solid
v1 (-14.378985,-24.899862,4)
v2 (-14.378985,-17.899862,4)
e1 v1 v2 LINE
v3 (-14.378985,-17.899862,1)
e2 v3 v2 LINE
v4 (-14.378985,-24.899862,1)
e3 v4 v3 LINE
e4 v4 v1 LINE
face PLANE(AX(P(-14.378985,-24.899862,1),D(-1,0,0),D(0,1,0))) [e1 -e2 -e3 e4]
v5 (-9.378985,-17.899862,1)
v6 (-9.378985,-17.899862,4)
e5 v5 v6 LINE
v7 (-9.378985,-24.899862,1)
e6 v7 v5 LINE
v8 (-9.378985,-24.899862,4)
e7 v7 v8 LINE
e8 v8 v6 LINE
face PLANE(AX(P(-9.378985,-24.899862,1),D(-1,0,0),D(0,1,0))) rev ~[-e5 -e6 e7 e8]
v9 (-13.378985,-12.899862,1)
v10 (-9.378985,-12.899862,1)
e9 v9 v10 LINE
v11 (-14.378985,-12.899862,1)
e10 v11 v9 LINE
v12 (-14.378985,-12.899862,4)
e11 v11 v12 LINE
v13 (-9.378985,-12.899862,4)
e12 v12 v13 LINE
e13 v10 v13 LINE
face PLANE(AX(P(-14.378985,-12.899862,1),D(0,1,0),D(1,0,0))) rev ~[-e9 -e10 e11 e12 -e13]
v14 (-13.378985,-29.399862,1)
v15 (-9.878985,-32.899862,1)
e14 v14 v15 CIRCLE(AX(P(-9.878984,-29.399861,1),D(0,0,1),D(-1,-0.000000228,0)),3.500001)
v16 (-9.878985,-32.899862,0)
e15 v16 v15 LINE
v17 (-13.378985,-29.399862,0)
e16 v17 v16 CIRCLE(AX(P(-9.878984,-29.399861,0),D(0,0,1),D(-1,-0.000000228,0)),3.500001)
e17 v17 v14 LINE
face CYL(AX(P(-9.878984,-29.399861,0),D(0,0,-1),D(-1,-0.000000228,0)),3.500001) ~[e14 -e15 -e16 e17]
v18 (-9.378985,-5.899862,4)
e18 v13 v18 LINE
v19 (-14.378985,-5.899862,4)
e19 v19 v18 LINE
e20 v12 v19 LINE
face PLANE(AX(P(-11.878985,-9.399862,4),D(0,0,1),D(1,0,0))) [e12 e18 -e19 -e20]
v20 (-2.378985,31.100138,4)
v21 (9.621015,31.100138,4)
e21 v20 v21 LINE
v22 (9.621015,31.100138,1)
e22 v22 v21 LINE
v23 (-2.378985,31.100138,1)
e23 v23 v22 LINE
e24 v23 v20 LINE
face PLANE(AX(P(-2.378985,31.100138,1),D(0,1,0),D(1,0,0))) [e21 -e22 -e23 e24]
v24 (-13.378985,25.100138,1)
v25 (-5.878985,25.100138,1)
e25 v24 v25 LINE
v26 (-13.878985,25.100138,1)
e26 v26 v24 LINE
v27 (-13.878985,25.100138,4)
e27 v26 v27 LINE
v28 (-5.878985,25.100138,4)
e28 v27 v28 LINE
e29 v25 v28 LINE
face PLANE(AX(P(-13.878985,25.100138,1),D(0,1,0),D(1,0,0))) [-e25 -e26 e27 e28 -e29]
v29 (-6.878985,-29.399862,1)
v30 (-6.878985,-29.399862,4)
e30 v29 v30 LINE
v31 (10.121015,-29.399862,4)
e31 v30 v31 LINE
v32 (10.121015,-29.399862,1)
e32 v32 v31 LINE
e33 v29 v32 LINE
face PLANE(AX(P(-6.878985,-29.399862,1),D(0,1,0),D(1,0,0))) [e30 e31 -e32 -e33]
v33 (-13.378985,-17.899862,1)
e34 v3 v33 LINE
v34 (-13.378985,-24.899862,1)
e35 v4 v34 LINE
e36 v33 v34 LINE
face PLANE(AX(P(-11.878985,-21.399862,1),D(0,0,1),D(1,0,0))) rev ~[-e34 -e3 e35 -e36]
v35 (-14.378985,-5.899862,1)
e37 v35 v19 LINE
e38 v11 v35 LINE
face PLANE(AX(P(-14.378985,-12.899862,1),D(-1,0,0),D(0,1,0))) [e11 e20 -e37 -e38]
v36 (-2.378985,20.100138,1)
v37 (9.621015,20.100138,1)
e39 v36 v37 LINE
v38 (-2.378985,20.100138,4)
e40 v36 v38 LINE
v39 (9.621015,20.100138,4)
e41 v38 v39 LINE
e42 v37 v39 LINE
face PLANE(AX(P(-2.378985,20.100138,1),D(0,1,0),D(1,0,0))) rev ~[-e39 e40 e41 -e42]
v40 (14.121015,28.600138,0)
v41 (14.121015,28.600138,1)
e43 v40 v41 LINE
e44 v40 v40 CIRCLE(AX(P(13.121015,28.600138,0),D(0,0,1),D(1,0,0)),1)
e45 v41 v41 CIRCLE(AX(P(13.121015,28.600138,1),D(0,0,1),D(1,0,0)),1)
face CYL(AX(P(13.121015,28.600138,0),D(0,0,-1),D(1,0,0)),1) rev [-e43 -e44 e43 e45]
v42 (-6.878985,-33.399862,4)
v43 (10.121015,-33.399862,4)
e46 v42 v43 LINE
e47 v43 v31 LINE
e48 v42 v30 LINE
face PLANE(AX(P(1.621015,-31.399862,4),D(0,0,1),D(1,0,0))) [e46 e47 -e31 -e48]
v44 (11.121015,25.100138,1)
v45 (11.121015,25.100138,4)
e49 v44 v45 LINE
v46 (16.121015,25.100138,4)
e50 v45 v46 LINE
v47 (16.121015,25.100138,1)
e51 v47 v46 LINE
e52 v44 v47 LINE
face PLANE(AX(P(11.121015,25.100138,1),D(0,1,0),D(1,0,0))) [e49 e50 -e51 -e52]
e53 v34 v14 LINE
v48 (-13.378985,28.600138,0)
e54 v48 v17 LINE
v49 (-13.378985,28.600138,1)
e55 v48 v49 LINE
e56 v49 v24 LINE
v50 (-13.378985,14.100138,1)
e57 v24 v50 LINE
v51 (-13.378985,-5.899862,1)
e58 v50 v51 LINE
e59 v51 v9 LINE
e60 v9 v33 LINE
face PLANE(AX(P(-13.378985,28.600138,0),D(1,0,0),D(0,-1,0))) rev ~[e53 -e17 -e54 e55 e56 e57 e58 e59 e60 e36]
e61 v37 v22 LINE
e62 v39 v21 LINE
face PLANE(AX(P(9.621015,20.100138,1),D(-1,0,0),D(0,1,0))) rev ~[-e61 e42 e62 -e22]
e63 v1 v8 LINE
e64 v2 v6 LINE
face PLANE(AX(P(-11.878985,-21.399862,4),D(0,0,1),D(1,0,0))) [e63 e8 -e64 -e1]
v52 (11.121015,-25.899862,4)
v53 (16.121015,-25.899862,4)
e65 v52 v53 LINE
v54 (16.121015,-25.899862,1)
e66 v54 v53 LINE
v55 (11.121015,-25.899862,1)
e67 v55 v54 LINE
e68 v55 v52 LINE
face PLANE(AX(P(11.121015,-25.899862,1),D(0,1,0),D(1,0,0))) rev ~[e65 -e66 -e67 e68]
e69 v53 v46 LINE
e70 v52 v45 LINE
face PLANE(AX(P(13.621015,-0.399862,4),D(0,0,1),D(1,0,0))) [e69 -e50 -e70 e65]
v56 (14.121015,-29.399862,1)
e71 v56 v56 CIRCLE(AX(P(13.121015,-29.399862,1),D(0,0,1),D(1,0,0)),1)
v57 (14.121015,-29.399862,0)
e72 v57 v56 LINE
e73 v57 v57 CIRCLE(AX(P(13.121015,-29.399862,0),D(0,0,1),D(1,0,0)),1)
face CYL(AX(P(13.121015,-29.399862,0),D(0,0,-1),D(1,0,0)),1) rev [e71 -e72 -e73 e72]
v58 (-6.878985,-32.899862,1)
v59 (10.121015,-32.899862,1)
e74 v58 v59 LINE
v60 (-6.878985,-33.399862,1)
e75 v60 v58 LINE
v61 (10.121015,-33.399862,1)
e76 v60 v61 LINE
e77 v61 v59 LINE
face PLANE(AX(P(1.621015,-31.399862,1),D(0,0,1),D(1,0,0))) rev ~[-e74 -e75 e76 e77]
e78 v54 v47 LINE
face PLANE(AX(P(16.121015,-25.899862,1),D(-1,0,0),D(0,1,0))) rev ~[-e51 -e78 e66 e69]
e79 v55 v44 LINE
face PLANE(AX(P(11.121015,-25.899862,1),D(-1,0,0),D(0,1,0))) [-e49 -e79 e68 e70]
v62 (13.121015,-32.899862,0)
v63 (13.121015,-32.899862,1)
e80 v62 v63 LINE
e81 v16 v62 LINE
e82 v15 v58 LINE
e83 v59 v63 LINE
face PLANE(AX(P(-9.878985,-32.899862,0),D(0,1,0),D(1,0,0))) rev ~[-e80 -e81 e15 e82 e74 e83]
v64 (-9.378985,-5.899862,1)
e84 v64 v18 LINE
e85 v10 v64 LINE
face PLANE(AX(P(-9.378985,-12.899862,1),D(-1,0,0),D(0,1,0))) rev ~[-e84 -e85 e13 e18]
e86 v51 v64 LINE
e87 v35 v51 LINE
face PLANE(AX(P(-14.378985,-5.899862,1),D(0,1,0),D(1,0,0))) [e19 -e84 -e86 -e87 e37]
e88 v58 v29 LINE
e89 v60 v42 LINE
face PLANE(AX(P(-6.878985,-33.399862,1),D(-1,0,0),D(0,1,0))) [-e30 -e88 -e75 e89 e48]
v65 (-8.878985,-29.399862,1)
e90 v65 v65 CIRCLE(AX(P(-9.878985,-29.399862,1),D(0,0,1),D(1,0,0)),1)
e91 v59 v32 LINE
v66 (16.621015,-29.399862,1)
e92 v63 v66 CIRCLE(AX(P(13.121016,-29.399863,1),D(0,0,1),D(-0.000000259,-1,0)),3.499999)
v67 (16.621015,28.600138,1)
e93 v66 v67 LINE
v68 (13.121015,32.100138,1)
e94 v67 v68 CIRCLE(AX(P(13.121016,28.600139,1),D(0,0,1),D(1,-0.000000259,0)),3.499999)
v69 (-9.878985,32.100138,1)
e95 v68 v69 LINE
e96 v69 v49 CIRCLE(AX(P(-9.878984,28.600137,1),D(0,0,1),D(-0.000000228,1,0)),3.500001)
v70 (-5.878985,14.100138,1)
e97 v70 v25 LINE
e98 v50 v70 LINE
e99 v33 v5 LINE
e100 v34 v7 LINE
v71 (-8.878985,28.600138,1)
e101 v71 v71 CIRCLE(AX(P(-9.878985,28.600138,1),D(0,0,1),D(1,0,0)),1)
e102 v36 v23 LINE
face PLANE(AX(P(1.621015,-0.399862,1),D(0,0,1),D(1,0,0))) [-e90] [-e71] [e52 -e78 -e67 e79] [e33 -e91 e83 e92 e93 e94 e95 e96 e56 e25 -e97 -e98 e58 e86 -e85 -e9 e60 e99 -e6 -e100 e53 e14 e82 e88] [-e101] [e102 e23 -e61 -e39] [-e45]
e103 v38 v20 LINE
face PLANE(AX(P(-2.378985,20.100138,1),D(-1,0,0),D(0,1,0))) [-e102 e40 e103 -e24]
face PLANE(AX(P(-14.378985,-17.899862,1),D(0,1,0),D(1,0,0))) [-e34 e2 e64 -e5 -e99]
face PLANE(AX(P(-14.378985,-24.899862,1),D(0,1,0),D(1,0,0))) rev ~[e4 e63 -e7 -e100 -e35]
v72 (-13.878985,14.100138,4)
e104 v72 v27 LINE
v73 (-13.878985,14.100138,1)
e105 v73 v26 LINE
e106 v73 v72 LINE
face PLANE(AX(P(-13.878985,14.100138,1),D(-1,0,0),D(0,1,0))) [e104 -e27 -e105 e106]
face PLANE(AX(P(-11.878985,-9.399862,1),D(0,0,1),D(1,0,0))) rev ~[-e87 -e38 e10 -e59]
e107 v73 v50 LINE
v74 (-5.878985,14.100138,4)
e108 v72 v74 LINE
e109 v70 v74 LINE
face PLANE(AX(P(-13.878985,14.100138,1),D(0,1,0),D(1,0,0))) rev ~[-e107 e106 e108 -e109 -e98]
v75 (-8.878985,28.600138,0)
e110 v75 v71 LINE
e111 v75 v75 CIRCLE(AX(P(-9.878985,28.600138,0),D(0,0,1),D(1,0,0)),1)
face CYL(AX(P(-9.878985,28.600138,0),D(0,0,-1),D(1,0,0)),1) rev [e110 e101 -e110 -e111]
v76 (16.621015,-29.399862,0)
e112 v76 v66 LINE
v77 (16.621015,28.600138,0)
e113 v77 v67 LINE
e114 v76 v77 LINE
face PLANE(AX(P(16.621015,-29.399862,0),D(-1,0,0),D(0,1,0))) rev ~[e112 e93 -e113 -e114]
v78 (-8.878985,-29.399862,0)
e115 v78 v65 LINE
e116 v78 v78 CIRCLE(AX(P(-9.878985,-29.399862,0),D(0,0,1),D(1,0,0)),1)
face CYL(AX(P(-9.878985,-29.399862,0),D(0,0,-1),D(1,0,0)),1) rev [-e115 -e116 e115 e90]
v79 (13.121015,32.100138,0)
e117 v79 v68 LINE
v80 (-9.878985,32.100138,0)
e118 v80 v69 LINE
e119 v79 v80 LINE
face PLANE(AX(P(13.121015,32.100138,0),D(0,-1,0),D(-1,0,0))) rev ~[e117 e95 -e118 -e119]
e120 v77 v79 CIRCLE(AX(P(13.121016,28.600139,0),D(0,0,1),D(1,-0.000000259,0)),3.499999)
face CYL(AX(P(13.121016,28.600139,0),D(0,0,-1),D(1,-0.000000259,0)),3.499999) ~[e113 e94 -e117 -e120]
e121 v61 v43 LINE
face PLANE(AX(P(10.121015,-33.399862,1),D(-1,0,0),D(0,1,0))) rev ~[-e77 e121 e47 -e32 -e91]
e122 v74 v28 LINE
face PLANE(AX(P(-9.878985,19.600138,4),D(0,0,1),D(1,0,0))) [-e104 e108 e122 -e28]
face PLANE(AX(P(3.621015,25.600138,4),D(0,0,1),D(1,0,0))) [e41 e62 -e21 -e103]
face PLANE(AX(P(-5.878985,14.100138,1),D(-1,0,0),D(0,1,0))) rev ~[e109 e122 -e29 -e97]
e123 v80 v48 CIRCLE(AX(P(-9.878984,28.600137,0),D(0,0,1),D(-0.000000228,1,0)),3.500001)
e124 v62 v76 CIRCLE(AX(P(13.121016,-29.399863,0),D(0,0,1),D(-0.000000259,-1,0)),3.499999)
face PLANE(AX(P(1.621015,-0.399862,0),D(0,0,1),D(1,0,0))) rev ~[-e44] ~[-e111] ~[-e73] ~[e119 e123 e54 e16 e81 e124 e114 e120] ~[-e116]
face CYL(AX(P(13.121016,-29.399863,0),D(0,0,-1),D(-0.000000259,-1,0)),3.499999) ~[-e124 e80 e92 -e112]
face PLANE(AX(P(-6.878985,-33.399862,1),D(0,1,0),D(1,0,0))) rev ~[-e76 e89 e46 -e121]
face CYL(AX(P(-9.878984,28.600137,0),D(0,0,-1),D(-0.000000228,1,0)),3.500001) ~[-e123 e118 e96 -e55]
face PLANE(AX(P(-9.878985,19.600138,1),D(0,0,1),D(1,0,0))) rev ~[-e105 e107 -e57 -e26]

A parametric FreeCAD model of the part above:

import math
import FreeCAD as App
import Part
import Sketcher


def add_polygon(sketch, points):
    """Adds a closed chain of lines whose ends are joined by coincident constraints."""
    first, n = sketch.GeometryCount, len(points)
    for a, b in zip(points, points[1:] + points[:1]):
        sketch.addGeometry(Part.LineSegment(App.Vector(*a, 0), App.Vector(*b, 0)), False)
    for i in range(n):
        sketch.addConstraint(Sketcher.Constraint("Coincident", first + i, 2, first + (i + 1) % n, 1))

doc = App.newDocument("Part")
body = doc.addObject("PartDesign::Body", "Body")

# Sketch on XY plane
sketch1 = doc.addObject("Sketcher::SketchObject", "Sketch")
body.addObject(sketch1)
sketch1.AttachmentSupport = (doc.XY_Plane, [""])
sketch1.MapMode = "FlatFace"
sketch1.addGeometry([
    Part.LineSegment(App.Vector(13.1, 32.1, 0), App.Vector(-9.9, 32.1, 0)),  # 0
    Part.ArcOfCircle(Part.Circle(App.Vector(-9.9, 28.6, 0), App.Vector(0, 0, 1), 3.5), math.radians(90), math.radians(180)),  # 1
    Part.LineSegment(App.Vector(-13.4, 28.6, 0), App.Vector(-13.4, -29.4, 0)),  # 2
    Part.ArcOfCircle(Part.Circle(App.Vector(-9.9, -29.4, 0), App.Vector(0, 0, 1), 3.5), math.radians(-180), math.radians(-90)),  # 3
    Part.LineSegment(App.Vector(-9.9, -32.9, 0), App.Vector(13.1, -32.9, 0)),  # 4
    Part.ArcOfCircle(Part.Circle(App.Vector(13.1, -29.4, 0), App.Vector(0, 0, 1), 3.5), math.radians(-90), math.radians(0)),  # 5
    Part.LineSegment(App.Vector(16.6, -29.4, 0), App.Vector(16.6, 28.6, 0)),  # 6
    Part.ArcOfCircle(Part.Circle(App.Vector(13.1, 28.6, 0), App.Vector(0, 0, 1), 3.5), math.radians(0), math.radians(90)),  # 7
    Part.Circle(App.Vector(-9.9, -29.4, 0), App.Vector(0, 0, 1), 1),  # 8
    Part.Circle(App.Vector(13.1, -29.4, 0), App.Vector(0, 0, 1), 1),  # 9
    Part.Circle(App.Vector(-9.9, 28.6, 0), App.Vector(0, 0, 1), 1),  # 10
    Part.Circle(App.Vector(13.1, 28.6, 0), App.Vector(0, 0, 1), 1),  # 11
], False)
sketch1.addConstraint([
    Sketcher.Constraint("Tangent", 0, 2, 1, 1),
    Sketcher.Constraint("Tangent", 1, 2, 2, 1),
    Sketcher.Constraint("Tangent", 2, 2, 3, 1),
    Sketcher.Constraint("Tangent", 3, 2, 4, 1),
    Sketcher.Constraint("Tangent", 4, 2, 5, 1),
    Sketcher.Constraint("Tangent", 5, 2, 6, 1),
    Sketcher.Constraint("Tangent", 6, 2, 7, 1),
    Sketcher.Constraint("Tangent", 7, 2, 0, 1),
    Sketcher.Constraint("Horizontal", 0),
    Sketcher.Constraint("Vertical", 2),
    Sketcher.Constraint("Horizontal", 4),
    Sketcher.Constraint("Vertical", 6),
    Sketcher.Constraint("Coincident", 8, 3, 3, 3),
    Sketcher.Constraint("Coincident", 9, 3, 5, 3),
    Sketcher.Constraint("Coincident", 10, 3, 1, 3),
    Sketcher.Constraint("Coincident", 11, 3, 7, 3),
    Sketcher.Constraint("Equal", 1, 3),
    Sketcher.Constraint("Equal", 3, 5),
    Sketcher.Constraint("Equal", 5, 7),
    Sketcher.Constraint("Equal", 8, 9),
    Sketcher.Constraint("Equal", 9, 10),
    Sketcher.Constraint("Equal", 10, 11),
    Sketcher.Constraint("Diameter", 8, 2.0),
    Sketcher.Constraint("Radius", 1, 3.500001),
    Sketcher.Constraint("DistanceX", 0, 2, 0, 1, 23.0),
    Sketcher.Constraint("DistanceY", 2, 2, 2, 1, 58.0),
    Sketcher.Constraint("DistanceY", 3, 3, -1, 1, 29.399861),
    Sketcher.Constraint("DistanceX", 1, 3, -1, 1, 9.878984),
])
pad1 = doc.addObject("PartDesign::Pad", "Pad")
body.addObject(pad1)
pad1.Profile = sketch1
pad1.Length = 1

# Sketch on XY plane
sketch2 = doc.addObject("Sketcher::SketchObject", "Sketch001")
body.addObject(sketch2)
sketch2.AttachmentSupport = (doc.XY_Plane, [""])
sketch2.MapMode = "FlatFace"
sketch2.AttachmentOffset = App.Placement(App.Vector(0, 0, 1), App.Rotation())
add_polygon(sketch2, [(-2.4, 31.1), (-2.4, 20.1), (9.6, 20.1), (9.6, 31.1)])  # lines 0-3
add_polygon(sketch2, [(-13.9, 25.1), (-13.9, 14.1), (-5.9, 14.1), (-5.9, 25.1)])  # lines 4-7
add_polygon(sketch2, [(-14.4, -17.9), (-14.4, -24.9), (-9.4, -24.9), (-9.4, -17.9)])  # lines 8-11
add_polygon(sketch2, [(-14.4, -5.9), (-14.4, -12.9), (-9.4, -12.9), (-9.4, -5.9)])  # lines 12-15
add_polygon(sketch2, [(-6.9, -29.4), (-6.9, -33.4), (10.1, -33.4), (10.1, -29.4)])  # lines 16-19
add_polygon(sketch2, [(11.1, 25.1), (11.1, -25.9), (16.1, -25.9), (16.1, 25.1)])  # lines 20-23
sketch2.addConstraint([
    Sketcher.Constraint("Vertical", 0),
    Sketcher.Constraint("Horizontal", 1),
    Sketcher.Constraint("Vertical", 2),
    Sketcher.Constraint("Horizontal", 3),
    Sketcher.Constraint("Vertical", 4),
    Sketcher.Constraint("Horizontal", 5),
    Sketcher.Constraint("Vertical", 6),
    Sketcher.Constraint("Horizontal", 7),
    Sketcher.Constraint("Vertical", 8),
    Sketcher.Constraint("Horizontal", 9),
    Sketcher.Constraint("Vertical", 10),
    Sketcher.Constraint("Horizontal", 11),
    Sketcher.Constraint("Vertical", 12),
    Sketcher.Constraint("Horizontal", 13),
    Sketcher.Constraint("Vertical", 14),
    Sketcher.Constraint("Horizontal", 15),
    Sketcher.Constraint("Vertical", 16),
    Sketcher.Constraint("Horizontal", 17),
    Sketcher.Constraint("Vertical", 18),
    Sketcher.Constraint("Horizontal", 19),
    Sketcher.Constraint("Vertical", 20),
    Sketcher.Constraint("Horizontal", 21),
    Sketcher.Constraint("Vertical", 22),
    Sketcher.Constraint("Horizontal", 23),
    Sketcher.Constraint("Horizontal", 7, 2, 22, 2),
    Sketcher.Constraint("Vertical", 11, 2, 12, 2),
    Sketcher.Constraint("Vertical", 10, 2, 13, 2),
    Sketcher.Constraint("Equal", 15, 21),
    Sketcher.Constraint("Equal", 2, 4),
    Sketcher.Constraint("Equal", 10, 12),
    Sketcher.Constraint("DistanceX", 1, 1, 1, 2, 12.0),
    Sketcher.Constraint("DistanceX", 5, 1, 5, 2, 8.0),
    Sketcher.Constraint("DistanceX", 9, 1, 9, 2, 5.0),
    Sketcher.Constraint("DistanceX", 17, 1, 17, 2, 17.0),
    Sketcher.Constraint("DistanceY", 0, 2, 0, 1, 11.0),
    Sketcher.Constraint("DistanceY", 8, 2, 8, 1, 7.0),
    Sketcher.Constraint("DistanceY", 16, 2, 16, 1, 4.0),
    Sketcher.Constraint("DistanceY", 20, 2, 20, 1, 51.0),
    Sketcher.Constraint("DistanceY", 4, 2, 0, 2, 6.0),
    Sketcher.Constraint("DistanceY", 8, 2, 4, 2, 39.0),
    Sketcher.Constraint("DistanceX", 8, 2, 0, 2, 12.0),
    Sketcher.Constraint("DistanceY", 11, 2, 12, 2, 5.0),
    Sketcher.Constraint("DistanceX", 18, 2, 20, 2, 1.0),
    Sketcher.Constraint("DistanceX", 6, 2, 22, 2, 22.0),
    Sketcher.Constraint("DistanceX", 4, 2, 0, 2, 11.5),
    Sketcher.Constraint("DistanceY", 16, 2, 9, 2, 8.5),
    Sketcher.Constraint("DistanceY", -1, 1, 0, 2, 20.100138),
    Sketcher.Constraint("DistanceX", 0, 2, -1, 1, 2.378985),
])
pad2 = doc.addObject("PartDesign::Pad", "Pad001")
body.addObject(pad2)
pad2.Profile = sketch2
pad2.Length = 3

doc.recompute()
